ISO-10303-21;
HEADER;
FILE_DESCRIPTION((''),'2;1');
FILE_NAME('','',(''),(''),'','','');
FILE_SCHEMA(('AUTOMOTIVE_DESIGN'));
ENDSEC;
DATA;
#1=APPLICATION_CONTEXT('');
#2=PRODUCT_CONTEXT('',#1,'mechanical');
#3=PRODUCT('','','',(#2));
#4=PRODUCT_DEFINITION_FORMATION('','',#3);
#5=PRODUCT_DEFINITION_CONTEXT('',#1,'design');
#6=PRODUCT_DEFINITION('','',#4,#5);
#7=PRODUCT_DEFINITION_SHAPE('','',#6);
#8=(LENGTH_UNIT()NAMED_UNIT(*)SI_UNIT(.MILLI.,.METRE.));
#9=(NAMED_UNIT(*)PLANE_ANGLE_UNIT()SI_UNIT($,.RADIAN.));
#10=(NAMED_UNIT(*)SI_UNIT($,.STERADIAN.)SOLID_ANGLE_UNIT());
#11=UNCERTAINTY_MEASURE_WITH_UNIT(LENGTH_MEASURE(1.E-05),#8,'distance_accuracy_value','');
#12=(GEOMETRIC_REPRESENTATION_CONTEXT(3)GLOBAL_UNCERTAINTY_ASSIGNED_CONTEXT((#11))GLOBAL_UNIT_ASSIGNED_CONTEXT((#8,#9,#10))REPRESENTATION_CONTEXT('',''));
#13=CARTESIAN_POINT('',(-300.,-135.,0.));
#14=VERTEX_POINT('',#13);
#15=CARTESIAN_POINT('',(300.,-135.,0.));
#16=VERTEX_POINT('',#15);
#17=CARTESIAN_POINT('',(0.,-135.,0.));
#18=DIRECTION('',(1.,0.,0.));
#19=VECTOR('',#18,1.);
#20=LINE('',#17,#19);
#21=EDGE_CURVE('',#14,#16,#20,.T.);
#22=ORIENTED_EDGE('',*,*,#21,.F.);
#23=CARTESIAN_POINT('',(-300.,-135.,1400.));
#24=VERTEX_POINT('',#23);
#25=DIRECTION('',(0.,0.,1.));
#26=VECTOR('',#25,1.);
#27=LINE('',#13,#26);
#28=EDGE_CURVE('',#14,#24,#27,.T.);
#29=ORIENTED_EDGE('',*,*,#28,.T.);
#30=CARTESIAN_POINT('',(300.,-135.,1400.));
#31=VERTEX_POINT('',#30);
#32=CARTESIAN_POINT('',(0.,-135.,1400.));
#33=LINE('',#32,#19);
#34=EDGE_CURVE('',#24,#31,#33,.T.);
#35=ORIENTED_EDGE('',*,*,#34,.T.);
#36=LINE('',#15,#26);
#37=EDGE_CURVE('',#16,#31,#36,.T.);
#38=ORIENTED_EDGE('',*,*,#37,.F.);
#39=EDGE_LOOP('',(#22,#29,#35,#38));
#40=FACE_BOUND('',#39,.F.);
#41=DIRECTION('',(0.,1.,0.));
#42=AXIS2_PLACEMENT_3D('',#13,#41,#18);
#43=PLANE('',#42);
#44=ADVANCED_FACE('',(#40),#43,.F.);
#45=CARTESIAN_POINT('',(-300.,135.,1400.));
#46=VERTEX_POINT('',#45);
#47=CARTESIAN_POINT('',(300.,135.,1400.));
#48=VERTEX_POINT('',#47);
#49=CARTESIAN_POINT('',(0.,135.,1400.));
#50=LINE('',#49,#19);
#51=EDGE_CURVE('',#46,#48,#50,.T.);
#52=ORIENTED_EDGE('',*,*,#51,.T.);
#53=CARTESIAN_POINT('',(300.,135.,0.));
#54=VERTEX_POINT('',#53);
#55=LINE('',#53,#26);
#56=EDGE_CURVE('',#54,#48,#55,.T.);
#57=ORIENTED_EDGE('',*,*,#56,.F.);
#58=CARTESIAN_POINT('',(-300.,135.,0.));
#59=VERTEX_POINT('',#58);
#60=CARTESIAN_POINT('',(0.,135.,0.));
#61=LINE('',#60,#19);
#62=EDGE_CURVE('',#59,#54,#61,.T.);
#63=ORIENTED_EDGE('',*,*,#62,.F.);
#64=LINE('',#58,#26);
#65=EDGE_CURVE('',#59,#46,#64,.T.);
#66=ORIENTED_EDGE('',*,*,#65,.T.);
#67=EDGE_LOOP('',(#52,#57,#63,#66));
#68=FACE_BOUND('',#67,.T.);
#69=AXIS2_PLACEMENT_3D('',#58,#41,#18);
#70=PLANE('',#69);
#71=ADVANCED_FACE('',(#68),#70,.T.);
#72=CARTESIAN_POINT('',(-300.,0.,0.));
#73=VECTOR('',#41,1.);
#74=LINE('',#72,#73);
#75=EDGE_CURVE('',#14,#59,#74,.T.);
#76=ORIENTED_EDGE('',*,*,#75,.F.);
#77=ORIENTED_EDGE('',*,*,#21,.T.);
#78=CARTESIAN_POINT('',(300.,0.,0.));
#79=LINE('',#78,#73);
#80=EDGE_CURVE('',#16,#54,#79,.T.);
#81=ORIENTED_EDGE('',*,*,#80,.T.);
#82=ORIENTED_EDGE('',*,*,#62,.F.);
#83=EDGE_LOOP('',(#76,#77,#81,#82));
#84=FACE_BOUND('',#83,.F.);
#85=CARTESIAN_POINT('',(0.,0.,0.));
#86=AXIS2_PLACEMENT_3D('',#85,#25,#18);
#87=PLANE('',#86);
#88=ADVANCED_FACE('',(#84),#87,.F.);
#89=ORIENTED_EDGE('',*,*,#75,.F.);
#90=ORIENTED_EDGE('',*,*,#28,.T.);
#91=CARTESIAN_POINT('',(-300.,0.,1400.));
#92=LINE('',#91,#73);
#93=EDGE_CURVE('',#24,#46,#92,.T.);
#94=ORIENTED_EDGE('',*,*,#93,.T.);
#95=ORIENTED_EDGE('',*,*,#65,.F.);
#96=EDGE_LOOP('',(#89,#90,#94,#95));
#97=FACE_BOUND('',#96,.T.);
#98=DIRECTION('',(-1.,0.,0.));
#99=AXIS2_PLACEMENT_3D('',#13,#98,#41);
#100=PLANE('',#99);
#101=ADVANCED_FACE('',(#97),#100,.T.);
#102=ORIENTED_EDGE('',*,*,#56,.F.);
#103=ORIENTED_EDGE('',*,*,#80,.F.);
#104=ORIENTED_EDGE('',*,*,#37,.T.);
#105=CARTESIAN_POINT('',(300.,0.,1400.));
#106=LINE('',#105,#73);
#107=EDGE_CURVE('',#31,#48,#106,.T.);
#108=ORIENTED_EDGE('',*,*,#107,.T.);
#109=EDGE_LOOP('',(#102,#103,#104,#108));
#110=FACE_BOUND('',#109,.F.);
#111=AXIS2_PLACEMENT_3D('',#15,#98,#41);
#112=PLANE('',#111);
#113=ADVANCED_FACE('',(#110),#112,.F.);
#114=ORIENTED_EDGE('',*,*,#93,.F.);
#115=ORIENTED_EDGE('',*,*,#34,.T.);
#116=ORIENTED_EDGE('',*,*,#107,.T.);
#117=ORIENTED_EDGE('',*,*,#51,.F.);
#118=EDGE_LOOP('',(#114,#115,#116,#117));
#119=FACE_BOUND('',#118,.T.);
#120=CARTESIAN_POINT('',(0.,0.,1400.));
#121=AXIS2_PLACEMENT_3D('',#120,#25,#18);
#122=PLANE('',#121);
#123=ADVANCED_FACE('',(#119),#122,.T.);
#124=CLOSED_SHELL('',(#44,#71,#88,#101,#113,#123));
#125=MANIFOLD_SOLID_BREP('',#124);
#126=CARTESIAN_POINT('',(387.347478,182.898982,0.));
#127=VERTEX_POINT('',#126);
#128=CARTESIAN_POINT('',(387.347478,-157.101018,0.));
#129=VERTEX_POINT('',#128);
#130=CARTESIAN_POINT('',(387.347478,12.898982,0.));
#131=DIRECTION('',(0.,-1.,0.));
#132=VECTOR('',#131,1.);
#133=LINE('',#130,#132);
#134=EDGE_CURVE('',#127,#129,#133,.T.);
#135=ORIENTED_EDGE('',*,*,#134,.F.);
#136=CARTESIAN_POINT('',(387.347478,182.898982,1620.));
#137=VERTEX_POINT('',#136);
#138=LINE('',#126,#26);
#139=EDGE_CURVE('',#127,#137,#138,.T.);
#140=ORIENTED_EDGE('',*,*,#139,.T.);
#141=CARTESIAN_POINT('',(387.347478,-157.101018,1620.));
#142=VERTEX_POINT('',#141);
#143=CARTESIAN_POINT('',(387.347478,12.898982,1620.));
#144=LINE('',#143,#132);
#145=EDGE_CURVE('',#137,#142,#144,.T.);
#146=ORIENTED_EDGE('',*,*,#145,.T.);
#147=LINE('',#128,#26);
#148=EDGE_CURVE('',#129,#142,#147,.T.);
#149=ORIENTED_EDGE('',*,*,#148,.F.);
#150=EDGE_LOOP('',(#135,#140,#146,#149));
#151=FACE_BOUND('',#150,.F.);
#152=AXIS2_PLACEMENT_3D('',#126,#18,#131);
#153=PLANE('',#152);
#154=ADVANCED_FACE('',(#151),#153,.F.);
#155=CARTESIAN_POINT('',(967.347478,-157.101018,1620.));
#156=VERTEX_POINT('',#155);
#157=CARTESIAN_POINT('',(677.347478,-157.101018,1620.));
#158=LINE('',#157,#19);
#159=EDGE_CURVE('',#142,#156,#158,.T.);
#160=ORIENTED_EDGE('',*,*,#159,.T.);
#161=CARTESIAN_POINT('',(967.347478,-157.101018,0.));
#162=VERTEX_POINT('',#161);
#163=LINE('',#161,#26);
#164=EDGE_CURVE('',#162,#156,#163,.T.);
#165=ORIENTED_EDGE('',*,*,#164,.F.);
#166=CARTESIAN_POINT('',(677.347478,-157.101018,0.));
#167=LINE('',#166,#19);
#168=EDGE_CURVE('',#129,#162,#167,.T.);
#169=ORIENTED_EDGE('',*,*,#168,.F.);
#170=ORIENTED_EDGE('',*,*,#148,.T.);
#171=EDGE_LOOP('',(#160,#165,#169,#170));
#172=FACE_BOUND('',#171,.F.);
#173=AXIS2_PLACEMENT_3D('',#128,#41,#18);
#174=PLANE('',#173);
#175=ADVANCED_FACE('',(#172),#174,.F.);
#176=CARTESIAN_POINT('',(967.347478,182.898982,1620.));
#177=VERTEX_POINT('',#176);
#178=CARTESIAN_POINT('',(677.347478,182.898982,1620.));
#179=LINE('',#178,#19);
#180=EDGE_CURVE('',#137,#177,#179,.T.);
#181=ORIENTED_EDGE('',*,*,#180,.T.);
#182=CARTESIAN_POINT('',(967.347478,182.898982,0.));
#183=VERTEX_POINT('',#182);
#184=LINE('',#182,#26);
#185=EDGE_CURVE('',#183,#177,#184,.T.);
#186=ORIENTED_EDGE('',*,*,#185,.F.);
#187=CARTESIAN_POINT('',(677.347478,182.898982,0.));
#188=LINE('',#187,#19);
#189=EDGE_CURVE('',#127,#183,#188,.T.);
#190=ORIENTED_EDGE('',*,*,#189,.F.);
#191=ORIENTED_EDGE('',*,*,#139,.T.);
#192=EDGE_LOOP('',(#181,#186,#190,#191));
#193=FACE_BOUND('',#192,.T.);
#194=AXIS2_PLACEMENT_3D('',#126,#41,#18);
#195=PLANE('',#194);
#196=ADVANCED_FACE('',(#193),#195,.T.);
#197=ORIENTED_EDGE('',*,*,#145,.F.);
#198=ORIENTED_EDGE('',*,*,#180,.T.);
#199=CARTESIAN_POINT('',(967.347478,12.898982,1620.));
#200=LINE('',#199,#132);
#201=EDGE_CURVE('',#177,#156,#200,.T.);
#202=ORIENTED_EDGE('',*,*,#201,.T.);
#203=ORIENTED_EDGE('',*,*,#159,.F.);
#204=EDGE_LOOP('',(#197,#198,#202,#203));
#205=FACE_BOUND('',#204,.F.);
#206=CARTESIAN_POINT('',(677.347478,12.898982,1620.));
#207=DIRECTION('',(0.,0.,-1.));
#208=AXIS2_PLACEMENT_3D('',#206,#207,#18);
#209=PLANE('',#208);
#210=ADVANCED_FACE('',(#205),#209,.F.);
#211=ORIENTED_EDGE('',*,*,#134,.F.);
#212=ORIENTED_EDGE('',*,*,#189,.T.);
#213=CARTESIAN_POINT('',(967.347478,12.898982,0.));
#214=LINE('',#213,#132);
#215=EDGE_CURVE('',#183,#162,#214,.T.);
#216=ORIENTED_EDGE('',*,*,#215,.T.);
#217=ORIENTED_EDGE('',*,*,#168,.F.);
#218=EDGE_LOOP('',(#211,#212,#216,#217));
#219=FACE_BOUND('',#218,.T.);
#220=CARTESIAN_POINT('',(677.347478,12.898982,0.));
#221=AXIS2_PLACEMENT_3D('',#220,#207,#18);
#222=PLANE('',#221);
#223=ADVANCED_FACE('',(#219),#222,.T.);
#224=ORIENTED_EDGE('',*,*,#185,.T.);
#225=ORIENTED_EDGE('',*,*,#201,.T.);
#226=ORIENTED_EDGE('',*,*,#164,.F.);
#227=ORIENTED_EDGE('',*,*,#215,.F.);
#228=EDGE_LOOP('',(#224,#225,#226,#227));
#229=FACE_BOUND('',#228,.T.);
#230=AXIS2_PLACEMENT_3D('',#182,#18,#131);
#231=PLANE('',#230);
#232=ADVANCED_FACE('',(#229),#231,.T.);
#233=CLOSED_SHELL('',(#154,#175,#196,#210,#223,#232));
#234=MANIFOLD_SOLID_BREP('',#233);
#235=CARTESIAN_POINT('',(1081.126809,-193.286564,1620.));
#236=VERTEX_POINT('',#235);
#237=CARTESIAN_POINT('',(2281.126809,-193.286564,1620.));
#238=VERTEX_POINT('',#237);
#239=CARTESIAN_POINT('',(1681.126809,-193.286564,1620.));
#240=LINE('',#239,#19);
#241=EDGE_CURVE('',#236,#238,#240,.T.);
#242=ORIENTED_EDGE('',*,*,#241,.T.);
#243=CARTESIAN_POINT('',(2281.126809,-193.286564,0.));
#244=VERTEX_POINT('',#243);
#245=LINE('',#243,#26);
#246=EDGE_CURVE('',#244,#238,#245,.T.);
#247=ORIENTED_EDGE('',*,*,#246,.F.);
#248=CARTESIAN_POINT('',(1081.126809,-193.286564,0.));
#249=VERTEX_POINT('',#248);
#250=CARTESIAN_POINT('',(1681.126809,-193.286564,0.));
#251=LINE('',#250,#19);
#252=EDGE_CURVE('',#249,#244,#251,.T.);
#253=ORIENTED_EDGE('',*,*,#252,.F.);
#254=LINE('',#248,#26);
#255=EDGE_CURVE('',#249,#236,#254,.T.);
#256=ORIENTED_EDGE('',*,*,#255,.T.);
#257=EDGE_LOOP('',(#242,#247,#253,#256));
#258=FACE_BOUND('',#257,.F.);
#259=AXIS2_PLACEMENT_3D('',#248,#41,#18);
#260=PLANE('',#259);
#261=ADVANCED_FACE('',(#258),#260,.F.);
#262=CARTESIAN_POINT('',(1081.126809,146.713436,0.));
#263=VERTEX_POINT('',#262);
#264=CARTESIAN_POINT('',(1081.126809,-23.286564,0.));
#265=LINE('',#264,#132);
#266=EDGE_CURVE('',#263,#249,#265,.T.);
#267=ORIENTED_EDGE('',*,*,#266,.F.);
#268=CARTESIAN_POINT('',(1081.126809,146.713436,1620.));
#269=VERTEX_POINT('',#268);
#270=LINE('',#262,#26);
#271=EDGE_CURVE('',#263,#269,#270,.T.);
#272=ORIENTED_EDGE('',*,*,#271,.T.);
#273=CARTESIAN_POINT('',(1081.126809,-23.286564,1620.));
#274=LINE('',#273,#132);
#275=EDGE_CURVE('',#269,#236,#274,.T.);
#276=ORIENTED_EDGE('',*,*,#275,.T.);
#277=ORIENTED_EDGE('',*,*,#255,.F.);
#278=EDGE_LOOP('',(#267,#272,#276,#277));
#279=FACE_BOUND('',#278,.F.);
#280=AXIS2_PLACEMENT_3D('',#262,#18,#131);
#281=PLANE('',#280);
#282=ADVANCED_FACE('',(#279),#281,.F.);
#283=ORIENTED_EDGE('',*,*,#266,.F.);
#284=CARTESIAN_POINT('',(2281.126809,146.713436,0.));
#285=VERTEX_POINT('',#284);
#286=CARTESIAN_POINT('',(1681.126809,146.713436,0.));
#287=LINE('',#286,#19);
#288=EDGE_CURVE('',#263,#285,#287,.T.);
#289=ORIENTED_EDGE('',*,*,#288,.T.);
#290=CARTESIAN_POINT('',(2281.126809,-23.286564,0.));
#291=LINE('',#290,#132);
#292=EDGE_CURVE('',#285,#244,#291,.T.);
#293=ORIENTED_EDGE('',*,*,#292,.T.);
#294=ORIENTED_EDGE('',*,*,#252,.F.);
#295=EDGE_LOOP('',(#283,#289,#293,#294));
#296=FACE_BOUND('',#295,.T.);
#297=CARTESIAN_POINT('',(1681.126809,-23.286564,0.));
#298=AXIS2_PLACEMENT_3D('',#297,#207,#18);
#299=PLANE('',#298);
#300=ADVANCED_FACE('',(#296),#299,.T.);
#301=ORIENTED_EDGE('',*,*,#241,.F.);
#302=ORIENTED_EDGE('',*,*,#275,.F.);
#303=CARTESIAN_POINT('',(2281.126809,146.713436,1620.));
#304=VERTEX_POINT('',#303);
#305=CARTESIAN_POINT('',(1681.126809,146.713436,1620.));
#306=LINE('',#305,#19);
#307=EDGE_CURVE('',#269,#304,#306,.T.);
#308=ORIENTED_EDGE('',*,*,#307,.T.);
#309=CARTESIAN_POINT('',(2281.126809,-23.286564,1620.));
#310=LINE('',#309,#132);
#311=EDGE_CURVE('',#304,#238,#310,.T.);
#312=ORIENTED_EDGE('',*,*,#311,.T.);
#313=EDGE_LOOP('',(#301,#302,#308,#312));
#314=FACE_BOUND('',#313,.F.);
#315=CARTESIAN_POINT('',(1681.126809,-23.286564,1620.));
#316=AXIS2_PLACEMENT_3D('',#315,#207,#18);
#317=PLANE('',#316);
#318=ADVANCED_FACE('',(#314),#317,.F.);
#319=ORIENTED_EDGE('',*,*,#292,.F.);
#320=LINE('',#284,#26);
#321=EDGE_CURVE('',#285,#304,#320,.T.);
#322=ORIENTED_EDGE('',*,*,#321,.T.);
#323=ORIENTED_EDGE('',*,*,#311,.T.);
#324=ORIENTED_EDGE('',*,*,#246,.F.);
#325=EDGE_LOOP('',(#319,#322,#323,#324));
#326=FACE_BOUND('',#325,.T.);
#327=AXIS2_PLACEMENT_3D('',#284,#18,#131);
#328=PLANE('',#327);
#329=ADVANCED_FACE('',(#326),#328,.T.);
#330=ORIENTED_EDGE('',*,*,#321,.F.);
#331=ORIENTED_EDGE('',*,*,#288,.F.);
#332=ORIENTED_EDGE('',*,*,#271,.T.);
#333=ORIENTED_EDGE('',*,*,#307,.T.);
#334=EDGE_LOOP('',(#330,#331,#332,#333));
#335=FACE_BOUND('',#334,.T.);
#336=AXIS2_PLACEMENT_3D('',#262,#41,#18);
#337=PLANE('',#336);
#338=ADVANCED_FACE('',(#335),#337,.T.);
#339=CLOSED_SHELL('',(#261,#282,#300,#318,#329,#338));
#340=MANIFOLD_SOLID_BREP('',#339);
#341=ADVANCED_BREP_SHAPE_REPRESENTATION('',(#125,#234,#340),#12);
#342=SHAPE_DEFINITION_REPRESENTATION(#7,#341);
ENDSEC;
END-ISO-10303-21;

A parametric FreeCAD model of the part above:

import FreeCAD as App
import Part
import Sketcher
from FreeCAD import Vector


def add_polygon(sketch, points):
    """Adds a closed chain of lines whose ends are joined by coincident constraints."""
    first, n = sketch.GeometryCount, len(points)
    for a, b in zip(points, points[1:] + points[:1]):
        sketch.addGeometry(Part.LineSegment(App.Vector(*a, 0), App.Vector(*b, 0)), False)
    for i in range(n):
        sketch.addConstraint(Sketcher.Constraint("Coincident", first + i, 2, first + (i + 1) % n, 1))

doc = App.newDocument("Part")
body = doc.addObject("PartDesign::Body", "Body")

# Sketch on XY plane
sketch1 = doc.addObject("Sketcher::SketchObject", "Sketch")
body.addObject(sketch1)
sketch1.AttachmentSupport = (doc.XY_Plane, [""])
sketch1.MapMode = "FlatFace"
add_polygon(sketch1, [(-300, 135), (-300, -135), (300, -135), (300, 135)])  # lines 0-3
sketch1.addConstraint(Sketcher.Constraint("Vertical", 0))
sketch1.addConstraint(Sketcher.Constraint("Horizontal", 1))
sketch1.addConstraint(Sketcher.Constraint("Vertical", 2))
sketch1.addConstraint(Sketcher.Constraint("Horizontal", 3))
sketch1.addConstraint(Sketcher.Constraint("Symmetric", 0, 2, 2, 2, -1, 1))
sketch1.addConstraint(Sketcher.Constraint("DistanceX", 1, 1, 1, 2, 600.0))
sketch1.addConstraint(Sketcher.Constraint("DistanceY", 0, 2, 0, 1, 270.0))
pad1 = doc.addObject("PartDesign::Pad", "Pad")
body.addObject(pad1)
pad1.Profile = sketch1
pad1.Length = 1400
body2 = doc.addObject("PartDesign::Body", "Body001")

# Sketch on XY plane
sketch2 = doc.addObject("Sketcher::SketchObject", "Sketch001")
body2.addObject(sketch2)
sketch2.AttachmentSupport = (doc.getObject("XY_Plane001"), [""])
sketch2.MapMode = "FlatFace"
add_polygon(sketch2, [(387.347478, -157.101018), (387.347478, 182.898982), (967.347478, 182.898982), (967.347478, -157.101018)])  # lines 0-3
sketch2.addConstraint(Sketcher.Constraint("Vertical", 0))
sketch2.addConstraint(Sketcher.Constraint("Horizontal", 1))
sketch2.addConstraint(Sketcher.Constraint("Vertical", 2))
sketch2.addConstraint(Sketcher.Constraint("Horizontal", 3))
sketch2.addConstraint(Sketcher.Constraint("DistanceX", 1, 1, 1, 2, 580.0))
sketch2.addConstraint(Sketcher.Constraint("DistanceY", 0, 1, 0, 2, 340.0))
sketch2.addConstraint(Sketcher.Constraint("DistanceX", -1, 1, 0, 2, 387.347478))
sketch2.addConstraint(Sketcher.Constraint("DistanceY", -1, 1, 0, 2, 182.898982))
pad2 = doc.addObject("PartDesign::Pad", "Pad001")
body2.addObject(pad2)
pad2.Profile = sketch2
pad2.Length = 1620
body3 = doc.addObject("PartDesign::Body", "Body002")

# Sketch on XY plane
sketch3 = doc.addObject("Sketcher::SketchObject", "Sketch002")
body3.addObject(sketch3)
sketch3.AttachmentSupport = (doc.getObject("XY_Plane002"), [""])
sketch3.MapMode = "FlatFace"
add_polygon(sketch3, [(1081.126809, -193.286564), (1081.126809, 146.713436), (2281.126809, 146.713436), (2281.126809, -193.286564)])  # lines 0-3
sketch3.addConstraint(Sketcher.Constraint("Vertical", 0))
sketch3.addConstraint(Sketcher.Constraint("Horizontal", 1))
sketch3.addConstraint(Sketcher.Constraint("Vertical", 2))
sketch3.addConstraint(Sketcher.Constraint("Horizontal", 3))
sketch3.addConstraint(Sketcher.Constraint("DistanceX", 1, 1, 1, 2, 1200.0))
sketch3.addConstraint(Sketcher.Constraint("DistanceY", 0, 1, 0, 2, 340.0))
sketch3.addConstraint(Sketcher.Constraint("DistanceX", -1, 1, 0, 2, 1081.126809))
sketch3.addConstraint(Sketcher.Constraint("DistanceY", -1, 1, 0, 2, 146.713436))
pad3 = doc.addObject("PartDesign::Pad", "Pad002")
body3.addObject(pad3)
pad3.Profile = sketch3
pad3.Length = 1620

doc.recompute()
